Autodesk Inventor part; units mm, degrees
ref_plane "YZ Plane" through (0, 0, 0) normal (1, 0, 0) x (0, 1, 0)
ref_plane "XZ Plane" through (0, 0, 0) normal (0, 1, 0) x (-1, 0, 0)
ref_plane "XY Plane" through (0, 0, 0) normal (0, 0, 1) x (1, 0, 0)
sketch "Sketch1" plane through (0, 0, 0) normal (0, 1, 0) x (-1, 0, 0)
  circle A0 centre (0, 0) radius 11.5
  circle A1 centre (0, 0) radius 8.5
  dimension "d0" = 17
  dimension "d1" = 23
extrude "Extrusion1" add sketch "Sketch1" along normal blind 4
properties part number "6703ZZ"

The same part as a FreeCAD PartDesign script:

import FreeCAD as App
import Part
import Sketcher
Q = App.Units.Quantity

doc = App.newDocument("Part")
body = doc.addObject("PartDesign::Body", "Body")

sketch1 = body.newObject("Sketcher::SketchObject", "Sketch")
sketch1.AttachmentSupport = (doc.getObject("XZ_Plane"), [""])
sketch1.MapMode = "FlatFace"
sketch1.addGeometry([
    Part.Circle(App.Vector(0, 0, 0), App.Vector(0, 0, 1), 12),
    Part.Circle(App.Vector(0, 0, 0), App.Vector(0, 0, 1), 8),
], False)
sketch1.addConstraint([
    Sketcher.Constraint("Coincident", 0, 3, -1, 1),
    Sketcher.Constraint("Coincident", 1, 3, -1, 1),
    Sketcher.Constraint("Diameter", 0, Q("23 mm")),
    Sketcher.Constraint("Diameter", 1, Q("17 mm")),
])
pad1 = body.newObject("PartDesign::Pad", "Pad")
pad1.Profile = sketch1
pad1.Length = 4
pad1.Reversed = True

doc.recompute()
